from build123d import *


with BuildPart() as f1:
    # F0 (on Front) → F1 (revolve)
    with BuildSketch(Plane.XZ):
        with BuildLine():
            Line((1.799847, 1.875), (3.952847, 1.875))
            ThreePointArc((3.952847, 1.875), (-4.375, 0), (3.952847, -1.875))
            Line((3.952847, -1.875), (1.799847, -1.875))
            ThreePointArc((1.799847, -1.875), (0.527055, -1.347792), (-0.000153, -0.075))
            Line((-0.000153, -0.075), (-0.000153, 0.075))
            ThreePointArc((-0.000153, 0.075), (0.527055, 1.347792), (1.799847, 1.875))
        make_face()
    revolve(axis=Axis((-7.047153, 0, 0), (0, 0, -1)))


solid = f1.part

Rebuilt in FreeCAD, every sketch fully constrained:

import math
import FreeCAD as App
import Part
import Sketcher
Q = App.Units.Quantity

doc = App.newDocument("Part")
body = doc.addObject("PartDesign::Body", "Body")

# Sketch on XZ plane
sketch1 = body.newObject("Sketcher::SketchObject", "Sketch")
sketch1.AttachmentSupport = (doc.getObject("XZ_Plane"), [""])
sketch1.MapMode = "FlatFace"
sketch1.addGeometry(Part.LineSegment(App.Vector(1.799847, 1.875, 0), App.Vector(3.952847, 1.875, 0)), False)
sketch1.addGeometry(Part.ArcOfCircle(Part.Circle(App.Vector(0, 0, 0), App.Vector(0, 0, 1), 4.375), math.radians(25.376934), math.radians(334.623066)), False)
sketch1.addGeometry(Part.LineSegment(App.Vector(3.952847, -1.875, 0), App.Vector(1.799847, -1.875, 0)), False)
sketch1.addGeometry(Part.ArcOfCircle(Part.Circle(App.Vector(1.799848, -0.074999, 0), App.Vector(0, 0, 1), 1.800001), math.radians(-179.999978), math.radians(-90.000022)), False)
sketch1.addGeometry(Part.LineSegment(App.Vector(-0.000153, -0.075, 0), App.Vector(-0.000153, 0.075, 0)), False)
sketch1.addGeometry(Part.ArcOfCircle(Part.Circle(App.Vector(1.799848, 0.074999, 0), App.Vector(0, 0, 1), 1.800001), math.radians(90.000022), math.radians(179.999978)), False)
sketch1.addGeometry(Part.LineSegment(App.Vector(-7.047153, 1.875, 0), App.Vector(-7.047153, -1.875, 0)), True)  # axis
sketch1.addConstraint(Sketcher.Constraint("Coincident", 0, 2, 1, 1))
sketch1.addConstraint(Sketcher.Constraint("Coincident", 1, 2, 2, 1))
sketch1.addConstraint(Sketcher.Constraint("Tangent", 2, 2, 3, 2))
sketch1.addConstraint(Sketcher.Constraint("Tangent", 3, 1, 4, 1))
sketch1.addConstraint(Sketcher.Constraint("Tangent", 4, 2, 5, 2))
sketch1.addConstraint(Sketcher.Constraint("Tangent", 5, 1, 0, 1))
sketch1.addConstraint(Sketcher.Constraint("Horizontal", 0))
sketch1.addConstraint(Sketcher.Constraint("Horizontal", 2))
sketch1.addConstraint(Sketcher.Constraint("Vertical", 4))
sketch1.addConstraint(Sketcher.Constraint("Vertical", 6))
sketch1.addConstraint(Sketcher.Constraint("Coincident", 1, 3, -1, 1))
sketch1.addConstraint(Sketcher.Constraint("Equal", 3, 5))
sketch1.addConstraint(Sketcher.Constraint("Horizontal", 5, 1, 6, 1))
sketch1.addConstraint(Sketcher.Constraint("Horizontal", 2, 2, 6, 2))
sketch1.addConstraint(Sketcher.Constraint("Vertical", 0, 2, 1, 2))
sketch1.addConstraint(Sketcher.Constraint("Radius", 3, Q("1.800001 mm")))
sketch1.addConstraint(Sketcher.Constraint("Radius", 1, Q("4.375 mm")))
sketch1.addConstraint(Sketcher.Constraint("DistanceY", 4, 1, 4, 2, Q("0.15 mm")))
sketch1.addConstraint(Sketcher.Constraint("DistanceX", 0, 1, 0, 2, Q("2.153 mm")))
sketch1.addConstraint(Sketcher.Constraint("DistanceX", 6, 1, 4, 2, Q("7.047 mm")))
revolution = body.newObject("PartDesign::Revolution", "Revolution")
revolution.Profile = sketch1
revolution.ReferenceAxis = (sketch1, ["Axis0"])
revolution.Angle = 360

doc.recompute()
